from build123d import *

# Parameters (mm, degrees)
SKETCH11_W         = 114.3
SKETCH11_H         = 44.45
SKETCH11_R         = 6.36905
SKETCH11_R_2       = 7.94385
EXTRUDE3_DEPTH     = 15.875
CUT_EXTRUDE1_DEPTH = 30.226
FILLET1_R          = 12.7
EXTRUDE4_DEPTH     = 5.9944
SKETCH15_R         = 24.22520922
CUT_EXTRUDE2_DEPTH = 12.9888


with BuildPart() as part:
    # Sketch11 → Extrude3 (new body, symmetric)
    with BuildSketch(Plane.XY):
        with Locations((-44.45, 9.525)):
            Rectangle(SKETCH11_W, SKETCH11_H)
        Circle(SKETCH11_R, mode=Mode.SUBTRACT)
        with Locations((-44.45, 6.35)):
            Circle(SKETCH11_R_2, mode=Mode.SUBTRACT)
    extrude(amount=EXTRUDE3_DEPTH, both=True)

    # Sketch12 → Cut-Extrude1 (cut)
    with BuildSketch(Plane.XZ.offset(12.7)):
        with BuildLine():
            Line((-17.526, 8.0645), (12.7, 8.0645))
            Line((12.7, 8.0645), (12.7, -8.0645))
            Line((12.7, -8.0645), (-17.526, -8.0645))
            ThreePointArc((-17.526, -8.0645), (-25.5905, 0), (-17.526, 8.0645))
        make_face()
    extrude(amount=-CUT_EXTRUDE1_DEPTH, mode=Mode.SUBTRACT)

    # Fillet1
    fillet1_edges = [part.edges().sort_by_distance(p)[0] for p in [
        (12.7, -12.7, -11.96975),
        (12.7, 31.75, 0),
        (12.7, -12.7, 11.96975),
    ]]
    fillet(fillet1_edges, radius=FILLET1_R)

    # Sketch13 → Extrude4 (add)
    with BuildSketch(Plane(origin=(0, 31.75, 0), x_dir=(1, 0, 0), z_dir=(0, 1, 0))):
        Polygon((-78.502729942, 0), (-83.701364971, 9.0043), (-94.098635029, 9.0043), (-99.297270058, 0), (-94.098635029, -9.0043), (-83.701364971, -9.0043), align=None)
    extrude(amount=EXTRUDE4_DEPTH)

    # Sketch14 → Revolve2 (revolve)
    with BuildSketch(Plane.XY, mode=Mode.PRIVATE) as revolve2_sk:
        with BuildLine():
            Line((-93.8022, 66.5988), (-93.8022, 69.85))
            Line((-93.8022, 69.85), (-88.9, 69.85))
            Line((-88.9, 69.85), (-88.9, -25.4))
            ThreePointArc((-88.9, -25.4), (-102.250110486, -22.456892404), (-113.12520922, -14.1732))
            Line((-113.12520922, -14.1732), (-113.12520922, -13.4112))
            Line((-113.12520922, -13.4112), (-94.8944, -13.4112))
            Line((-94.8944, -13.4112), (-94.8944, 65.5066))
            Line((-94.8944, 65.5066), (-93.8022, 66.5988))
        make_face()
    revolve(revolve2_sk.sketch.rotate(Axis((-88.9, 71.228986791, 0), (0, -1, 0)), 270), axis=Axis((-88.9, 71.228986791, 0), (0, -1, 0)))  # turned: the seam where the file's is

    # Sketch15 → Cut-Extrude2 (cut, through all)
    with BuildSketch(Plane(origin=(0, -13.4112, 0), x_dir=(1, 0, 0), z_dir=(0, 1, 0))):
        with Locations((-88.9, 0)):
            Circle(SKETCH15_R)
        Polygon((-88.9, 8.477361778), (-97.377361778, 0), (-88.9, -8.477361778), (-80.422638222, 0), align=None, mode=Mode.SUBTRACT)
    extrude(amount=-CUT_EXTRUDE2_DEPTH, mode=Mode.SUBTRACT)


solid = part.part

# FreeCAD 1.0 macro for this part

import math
import FreeCAD as App
import Part
import Sketcher
Q = App.Units.Quantity


def edges_at(feature, points):
    """Names of the edges that pass closest to the given points."""
    edges = feature.Shape.Edges
    near = lambda p: min(range(len(edges)), key=lambda i: edges[i].distToShape(Part.Vertex(*p))[0])
    return sorted({f"Edge{near(p) + 1}" for p in points})


def add_polygon(sketch, points):
    """Adds a closed chain of lines whose ends are joined by coincident constraints."""
    first, n = sketch.GeometryCount, len(points)
    for a, b in zip(points, points[1:] + points[:1]):
        sketch.addGeometry(Part.LineSegment(App.Vector(*a, 0), App.Vector(*b, 0)), False)
    for i in range(n):
        sketch.addConstraint(Sketcher.Constraint("Coincident", first + i, 2, first + (i + 1) % n, 1))

doc = App.newDocument("Part")
body = doc.addObject("PartDesign::Body", "Body")

# Sketch on XY plane
sketch1 = doc.addObject("Sketcher::SketchObject", "Sketch")
body.addObject(sketch1)
sketch1.AttachmentSupport = (doc.XY_Plane, [""])
sketch1.MapMode = "FlatFace"
add_polygon(sketch1, [(-102, 32), (-102, -13), (13, -13), (13, 32)])  # lines 0-3
sketch1.addGeometry(Part.Circle(App.Vector(0, 0, 0), App.Vector(0, 0, 1), 6), False)  # 4
sketch1.addGeometry(Part.Circle(App.Vector(-44, 6, 0), App.Vector(0, 0, 1), 8), False)  # 5
sketch1.addConstraint(Sketcher.Constraint("Vertical", 0))
sketch1.addConstraint(Sketcher.Constraint("Horizontal", 1))
sketch1.addConstraint(Sketcher.Constraint("Vertical", 2))
sketch1.addConstraint(Sketcher.Constraint("Horizontal", 3))
sketch1.addConstraint(Sketcher.Constraint("Coincident", 4, 3, -1, 1))
sketch1.addConstraint(Sketcher.Constraint("DistanceX", 1, 1, 1, 2, Q("4.5 in")))
sketch1.addConstraint(Sketcher.Constraint("DistanceX", 0, 2, -1, 1, Q("4 in")))
sketch1.addConstraint(Sketcher.Constraint("DistanceY", 5, 3, 2, 2, Q("1 in")))
sketch1.addConstraint(Sketcher.Constraint("Diameter", 4, Q("0.5015 in")))
sketch1.addConstraint(Sketcher.Constraint("Diameter", 5, Q("0.6255 in")))
sketch1.addConstraint(Sketcher.Constraint("DistanceY", 0, 2, 0, 1, Q("1.75 in")))
sketch1.addConstraint(Sketcher.Constraint("DistanceY", 0, 2, -1, 1, Q("0.5 in")))
sketch1.addConstraint(Sketcher.Constraint("DistanceX", 5, 3, -1, 1, Q("1.75 in")))
pad1 = doc.addObject("PartDesign::Pad", "Pad")
body.addObject(pad1)
pad1.Profile = sketch1
pad1.Length = Q("1.25 in")
pad1.Midplane = True

# Sketch on XZ plane
sketch2 = doc.addObject("Sketcher::SketchObject", "Sketch001")
body.addObject(sketch2)
sketch2.AttachmentSupport = (doc.XZ_Plane, [""])
sketch2.MapMode = "FlatFace"
sketch2.AttachmentOffset = App.Placement(App.Vector(0, 0, 0.5 * 25.4), App.Rotation())
sketch2.addGeometry(Part.LineSegment(App.Vector(13, 8, 0), App.Vector(-18, 8, 0)), False)
sketch2.addGeometry(Part.ArcOfCircle(Part.Circle(App.Vector(-18, 0, 0), App.Vector(0, 0, 1), 8), math.radians(90), math.radians(270)), False)
sketch2.addGeometry(Part.LineSegment(App.Vector(-18, -8, 0), App.Vector(13, -8, 0)), False)
sketch2.addGeometry(Part.LineSegment(App.Vector(13, -8, 0), App.Vector(13, 8, 0)), False)
sketch2.addConstraint(Sketcher.Constraint("Tangent", 0, 2, 1, 1))
sketch2.addConstraint(Sketcher.Constraint("Tangent", 1, 2, 2, 1))
sketch2.addConstraint(Sketcher.Constraint("Coincident", 2, 2, 3, 1))
sketch2.addConstraint(Sketcher.Constraint("Coincident", 3, 2, 0, 1))
sketch2.addConstraint(Sketcher.Constraint("Horizontal", 0))
sketch2.addConstraint(Sketcher.Constraint("Horizontal", 2))
sketch2.addConstraint(Sketcher.Constraint("Vertical", 3))
sketch2.addConstraint(Sketcher.Constraint("PointOnObject", 1, 3, -1))
sketch2.addConstraint(Sketcher.Constraint("DistanceX", 0, 2, 0, 1, Q("1.19 in")))
sketch2.addConstraint(Sketcher.Constraint("DistanceX", -1, 1, 2, 2, Q("0.5 in")))
sketch2.addConstraint(Sketcher.Constraint("Radius", 1, Q("0.3175 in")))
pocket1 = doc.addObject("PartDesign::Pocket", "Pocket")
body.addObject(pocket1)
pocket1.Profile = sketch2
pocket1.Length = Q("1.19 in")
doc.recompute()

fillet = doc.addObject("PartDesign::Fillet", "Fillet")
body.addObject(fillet)
fillet.Base = (pocket1, edges_at(pocket1, [(12.7, -12.7, -11.97), (12.7, 31.75, 0), (12.7, -12.7, 11.97)]))
fillet.Radius = Q("0.5 in")

# Sketch on XZ plane
sketch3 = doc.addObject("Sketcher::SketchObject", "Sketch002")
body.addObject(sketch3)
sketch3.AttachmentSupport = (doc.XZ_Plane, [""])
sketch3.MapMode = "FlatFace"
sketch3.AttachmentOffset = App.Placement(App.Vector(0, 0, -1.25 * 25.4), App.Rotation())
add_polygon(sketch3, [(-79, 0), (-84, -9), (-94, -9), (-99, 0), (-94, 9), (-84, 9)])  # lines 0-5
sketch3.addConstraint(Sketcher.Constraint("Horizontal", 1))
sketch3.addConstraint(Sketcher.Constraint("Horizontal", 4))
sketch3.addConstraint(Sketcher.Constraint("Symmetric", 1, 2, 3, 2, -1))
sketch3.addConstraint(Sketcher.Constraint("PointOnObject", 2, 2, -1))
sketch3.addConstraint(Sketcher.Constraint("PointOnObject", 5, 2, -1))
sketch3.addConstraint(Sketcher.Constraint("Parallel", 0, 3))
sketch3.addConstraint(Sketcher.Constraint("Parallel", 2, 5))
sketch3.addConstraint(Sketcher.Constraint("Angle", 0, Q("-120 deg")))
sketch3.addConstraint(Sketcher.Constraint("DistanceY", 1, 2, 3, 2, Q("0.709 in")))
sketch3.addConstraint(Sketcher.Constraint("DistanceX", 1, 2, 1, 1, 10.39727))
sketch3.addConstraint(Sketcher.Constraint("DistanceX", 2, 2, -1, 1, 99.29727))
pad2 = doc.addObject("PartDesign::Pad", "Pad001")
body.addObject(pad2)
pad2.Profile = sketch3
pad2.Length = Q("0.236 in")
pad2.Reversed = True

# Sketch on XY plane
sketch4 = doc.addObject("Sketcher::SketchObject", "Sketch003")
body.addObject(sketch4)
sketch4.AttachmentSupport = (doc.XY_Plane, [""])
sketch4.MapMode = "FlatFace"
sketch4.addGeometry(Part.LineSegment(App.Vector(-93.8, 69.8, 0), App.Vector(-93.8, 66.6, 0)), False)
sketch4.addGeometry(Part.LineSegment(App.Vector(-93.8, 66.6, 0), App.Vector(-94.9, 65.5, 0)), False)
sketch4.addGeometry(Part.LineSegment(App.Vector(-94.9, 65.5, 0), App.Vector(-94.9, -13.4, 0)), False)
sketch4.addGeometry(Part.LineSegment(App.Vector(-94.9, -13.4, 0), App.Vector(-113.1, -13.4, 0)), False)
sketch4.addGeometry(Part.LineSegment(App.Vector(-113.1, -13.4, 0), App.Vector(-113.1, -14.2, 0)), False)
sketch4.addGeometry(Part.ArcOfCircle(Part.Circle(App.Vector(-88.9, 6.4, 0), App.Vector(0, 0, 1), 31.8), math.radians(-140), math.radians(-90)), False)
sketch4.addGeometry(Part.LineSegment(App.Vector(-88.9, -25.4, 0), App.Vector(-88.9, 69.8, 0)), False)
sketch4.addGeometry(Part.LineSegment(App.Vector(-88.9, 69.8, 0), App.Vector(-93.8, 69.8, 0)), False)
sketch4.addGeometry(Part.LineSegment(App.Vector(-88.9, 69.8, 0), App.Vector(-88.9, -25.4, 0)), True)  # axis
sketch4.addConstraint(Sketcher.Constraint("Coincident", 0, 2, 1, 1))
sketch4.addConstraint(Sketcher.Constraint("Coincident", 1, 2, 2, 1))
sketch4.addConstraint(Sketcher.Constraint("Coincident", 2, 2, 3, 1))
sketch4.addConstraint(Sketcher.Constraint("Coincident", 3, 2, 4, 1))
sketch4.addConstraint(Sketcher.Constraint("Coincident", 4, 2, 5, 1))
sketch4.addConstraint(Sketcher.Constraint("Coincident", 5, 2, 6, 1))
sketch4.addConstraint(Sketcher.Constraint("Coincident", 6, 2, 7, 1))
sketch4.addConstraint(Sketcher.Constraint("Coincident", 7, 2, 0, 1))
sketch4.addConstraint(Sketcher.Constraint("Vertical", 0))
sketch4.addConstraint(Sketcher.Constraint("Vertical", 2))
sketch4.addConstraint(Sketcher.Constraint("Horizontal", 3))
sketch4.addConstraint(Sketcher.Constraint("Vertical", 4))
sketch4.addConstraint(Sketcher.Constraint("Vertical", 6))
sketch4.addConstraint(Sketcher.Constraint("Horizontal", 7))
sketch4.addConstraint(Sketcher.Constraint("Vertical", 8))
sketch4.addConstraint(Sketcher.Constraint("Coincident", 8, 1, 6, 2))
sketch4.addConstraint(Sketcher.Constraint("Equal", 6, 8))
sketch4.addConstraint(Sketcher.Constraint("Radius", 5, Q("1.25 in")))
sketch4.addConstraint(Sketcher.Constraint("DistanceY", 5, 2, -1, 1, Q("1 in")))
sketch4.addConstraint(Sketcher.Constraint("Angle", 1, Q("-135 deg")))
sketch4.addConstraint(Sketcher.Constraint("DistanceY", 4, 2, 4, 1, Q("0.03 in")))
sketch4.addConstraint(Sketcher.Constraint("DistanceY", 6, 1, 6, 2, Q("3.75 in")))
sketch4.addConstraint(Sketcher.Constraint("DistanceX", 5, 3, -1, 1, Q("3.5 in")))
sketch4.addConstraint(Sketcher.Constraint("DistanceX", 5, 2, -1, 1, Q("3.5 in")))
sketch4.addConstraint(Sketcher.Constraint("DistanceX", 7, 2, 7, 1, Q("0.193 in")))
sketch4.addConstraint(Sketcher.Constraint("DistanceY", 0, 2, 0, 1, Q("0.128 in")))
sketch4.addConstraint(Sketcher.Constraint("DistanceY", 2, 2, 2, 1, Q("3.107 in")))
sketch4.addConstraint(Sketcher.Constraint("DistanceY", 2, 2, 0, 2, Q("3.15 in")))
revolution = doc.addObject("PartDesign::Revolution", "Revolution")
body.addObject(revolution)
revolution.Profile = sketch4
revolution.ReferenceAxis = (sketch4, ["Axis0"])
revolution.Angle = 360

# Sketch on XZ plane
sketch5 = doc.addObject("Sketcher::SketchObject", "Sketch004")
body.addObject(sketch5)
sketch5.AttachmentSupport = (doc.XZ_Plane, [""])
sketch5.MapMode = "FlatFace"
sketch5.AttachmentOffset = App.Placement(App.Vector(0, 0, 0.528 * 25.4), App.Rotation())
sketch5.addGeometry(Part.Circle(App.Vector(-89, 0, 0), App.Vector(0, 0, 1), 24), False)  # 0
add_polygon(sketch5, [(-97, 0), (-89, -8), (-80, 0), (-89, 8)])  # lines 1-4
sketch5.addConstraint(Sketcher.Constraint("Symmetric", 1, 2, 3, 2, -1))
sketch5.addConstraint(Sketcher.Constraint("PointOnObject", 0, 3, -1))
sketch5.addConstraint(Sketcher.Constraint("PointOnObject", 2, 2, -1))
sketch5.addConstraint(Sketcher.Constraint("PointOnObject", 4, 2, -1))
sketch5.addConstraint(Sketcher.Constraint("Perpendicular", 1, 2))
sketch5.addConstraint(Sketcher.Constraint("Perpendicular", 2, 3))
sketch5.addConstraint(Sketcher.Constraint("Vertical", 0, 3, 1, 2))
sketch5.addConstraint(Sketcher.Constraint("DistanceX", 0, 3, -1, 1, Q("3.5 in")))
sketch5.addConstraint(Sketcher.Constraint("Distance", 1, Q("0.472 in")))
sketch5.addConstraint(Sketcher.Constraint("Diameter", 0, 48.450418))
pocket2 = doc.addObject("PartDesign::Pocket", "Pocket001")
body.addObject(pocket2)
pocket2.Profile = sketch5
pocket2.Type = "ThroughAll"
pocket2.Reversed = True

doc.recompute()
